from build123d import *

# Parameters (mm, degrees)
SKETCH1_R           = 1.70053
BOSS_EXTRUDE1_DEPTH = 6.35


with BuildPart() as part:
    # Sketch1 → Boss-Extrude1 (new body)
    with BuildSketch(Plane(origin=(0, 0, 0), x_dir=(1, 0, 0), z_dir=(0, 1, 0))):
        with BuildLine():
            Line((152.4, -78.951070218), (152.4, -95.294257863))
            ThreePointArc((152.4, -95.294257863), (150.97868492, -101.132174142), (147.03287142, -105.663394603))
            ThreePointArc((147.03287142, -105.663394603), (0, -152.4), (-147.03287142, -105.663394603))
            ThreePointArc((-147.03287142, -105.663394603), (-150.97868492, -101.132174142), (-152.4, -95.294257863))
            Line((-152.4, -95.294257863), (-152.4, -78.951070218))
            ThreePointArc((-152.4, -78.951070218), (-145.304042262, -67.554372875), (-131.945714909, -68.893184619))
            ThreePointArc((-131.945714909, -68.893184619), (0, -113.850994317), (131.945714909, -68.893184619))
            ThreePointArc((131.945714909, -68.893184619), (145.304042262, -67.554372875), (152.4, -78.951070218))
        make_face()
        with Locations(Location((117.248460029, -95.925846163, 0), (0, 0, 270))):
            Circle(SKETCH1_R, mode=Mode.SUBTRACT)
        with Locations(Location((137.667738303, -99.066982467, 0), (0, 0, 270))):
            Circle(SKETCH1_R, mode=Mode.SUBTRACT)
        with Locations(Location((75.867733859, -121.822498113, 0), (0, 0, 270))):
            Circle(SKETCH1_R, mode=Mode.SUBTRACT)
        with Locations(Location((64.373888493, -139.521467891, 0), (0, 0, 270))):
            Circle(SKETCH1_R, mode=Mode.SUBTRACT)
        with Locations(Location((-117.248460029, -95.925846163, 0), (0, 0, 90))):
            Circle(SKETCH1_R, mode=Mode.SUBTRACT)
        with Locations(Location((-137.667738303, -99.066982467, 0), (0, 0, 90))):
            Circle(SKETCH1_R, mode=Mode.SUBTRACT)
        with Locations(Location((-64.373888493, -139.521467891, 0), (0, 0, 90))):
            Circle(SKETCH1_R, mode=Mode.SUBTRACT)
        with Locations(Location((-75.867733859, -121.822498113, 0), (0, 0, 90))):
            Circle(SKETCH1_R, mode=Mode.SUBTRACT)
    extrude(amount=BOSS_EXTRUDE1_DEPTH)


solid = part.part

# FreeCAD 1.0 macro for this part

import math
import FreeCAD as App
import Part
import Sketcher
Q = App.Units.Quantity

doc = App.newDocument("Part")
body = doc.addObject("PartDesign::Body", "Body")

sketch1 = body.newObject("Sketcher::SketchObject", "Sketch")
sketch1.AttachmentSupport = (doc.getObject("XZ_Plane"), [""])
sketch1.MapMode = "FlatFace"
sketch1.addGeometry([
    Part.LineSegment(App.Vector(152.4, 95.3, 0), App.Vector(152.4, 79, 0)),
    Part.ArcOfCircle(Part.Circle(App.Vector(139.7, 79, 0), App.Vector(0, 0, 1), 12.7), math.radians(-128), math.radians(0)),
    Part.ArcOfCircle(Part.Circle(App.Vector(0, -102.3, 0), App.Vector(0, 0, 1), 216.1), math.radians(52), math.radians(128)),
    Part.ArcOfCircle(Part.Circle(App.Vector(-139.7, 79, 0), App.Vector(0, 0, 1), 12.7), math.radians(180), math.radians(308)),
    Part.LineSegment(App.Vector(-152.4, 79, 0), App.Vector(-152.4, 95.3, 0)),
    Part.ArcOfCircle(Part.Circle(App.Vector(-139.7, 95.3, 0), App.Vector(0, 0, 1), 12.7), math.radians(125), math.radians(180)),
    Part.ArcOfCircle(Part.Circle(App.Vector(0, -102.3, 0), App.Vector(0, 0, 1), 254.7), math.radians(55), math.radians(125)),
    Part.ArcOfCircle(Part.Circle(App.Vector(139.7, 95.3, 0), App.Vector(0, 0, 1), 12.7), math.radians(0), math.radians(55)),
    Part.Circle(App.Vector(64.4, 139.5, 0), App.Vector(0, 0, 1), 1.7),
    Part.Circle(App.Vector(75.9, 121.8, 0), App.Vector(0, 0, 1), 1.7),
    Part.Circle(App.Vector(-64.4, 139.5, 0), App.Vector(0, 0, 1), 1.7),
    Part.Circle(App.Vector(-75.9, 121.8, 0), App.Vector(0, 0, 1), 1.7),
    Part.Circle(App.Vector(137.7, 99.1, 0), App.Vector(0, 0, 1), 1.7),
    Part.Circle(App.Vector(117.2, 95.9, 0), App.Vector(0, 0, 1), 1.7),
    Part.Circle(App.Vector(-137.7, 99.1, 0), App.Vector(0, 0, 1), 1.7),
    Part.Circle(App.Vector(-117.2, 95.9, 0), App.Vector(0, 0, 1), 1.7),
], False)
sketch1.addConstraint([
    Sketcher.Constraint("Tangent", 0, 2, 1, 2),
    Sketcher.Constraint("Tangent", 1, 1, 2, 1),
    Sketcher.Constraint("Tangent", 2, 2, 3, 2),
    Sketcher.Constraint("Tangent", 3, 1, 4, 1),
    Sketcher.Constraint("Tangent", 4, 2, 5, 2),
    Sketcher.Constraint("Tangent", 5, 1, 6, 2),
    Sketcher.Constraint("Tangent", 6, 1, 7, 2),
    Sketcher.Constraint("Tangent", 7, 1, 0, 1),
    Sketcher.Constraint("Vertical", 0),
    Sketcher.Constraint("Vertical", 4),
    Sketcher.Constraint("Coincident", 6, 3, 2, 3),
    Sketcher.Constraint("Equal", 1, 3),
    Sketcher.Constraint("Equal", 3, 5),
    Sketcher.Constraint("Equal", 5, 7),
    Sketcher.Constraint("Equal", 8, 9),
    Sketcher.Constraint("Equal", 9, 10),
    Sketcher.Constraint("Equal", 10, 11),
    Sketcher.Constraint("Equal", 11, 12),
    Sketcher.Constraint("Equal", 12, 13),
    Sketcher.Constraint("Equal", 13, 14),
    Sketcher.Constraint("Equal", 14, 15),
    Sketcher.Constraint("Symmetric", 1, 3, 3, 3, -2),
    Sketcher.Constraint("Symmetric", 8, 3, 10, 3, -2),
    Sketcher.Constraint("Symmetric", 9, 3, 11, 3, -2),
    Sketcher.Constraint("Symmetric", 12, 3, 14, 3, -2),
    Sketcher.Constraint("Symmetric", 13, 3, 15, 3, -2),
    Sketcher.Constraint("Radius", 1, Q("0.5 in")),
    Sketcher.Constraint("DistanceX", -1, 1, 0, 2, Q("6 in")),
    Sketcher.Constraint("Diameter", 8, Q("0.1339 in")),
    Sketcher.Constraint("Radius", 6, Q("10.0256 in")),
    Sketcher.Constraint("DistanceY", 2, 3, -1, 1, Q("4.0256 in")),
    Sketcher.Constraint("Radius", 2, 216.101234),
    Sketcher.Constraint("DistanceY", -1, 1, 9, 3, 121.822498),
    Sketcher.Constraint("DistanceX", -1, 1, 8, 3, 64.373888),
    Sketcher.Constraint("DistanceX", -1, 1, 12, 3, 137.667738),
    Sketcher.Constraint("DistanceX", -1, 1, 13, 3, 117.24846),
    Sketcher.Constraint("DistanceY", 7, 3, 8, 3, 44.22721),
    Sketcher.Constraint("DistanceY", 7, 3, 13, 3, 0.631588),
    Sketcher.Constraint("DistanceX", 2, 2, 11, 3, 56.077981),
    Sketcher.Constraint("DistanceY", -1, 1, 12, 3, 99.066982),
])
pad1 = body.newObject("PartDesign::Pad", "Pad")
pad1.Profile = sketch1
pad1.Length = Q("0.25 in")
pad1.Reversed = True

doc.recompute()
